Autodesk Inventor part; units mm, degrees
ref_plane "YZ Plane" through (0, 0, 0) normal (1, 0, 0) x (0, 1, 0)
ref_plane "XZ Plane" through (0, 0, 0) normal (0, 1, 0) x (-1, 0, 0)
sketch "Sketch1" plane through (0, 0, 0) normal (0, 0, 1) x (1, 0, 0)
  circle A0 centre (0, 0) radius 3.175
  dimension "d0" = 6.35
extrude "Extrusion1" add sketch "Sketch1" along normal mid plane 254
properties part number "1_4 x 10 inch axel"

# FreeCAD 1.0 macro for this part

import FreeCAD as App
import Part
import Sketcher
from FreeCAD import Vector
Q = App.Units.Quantity

doc = App.newDocument("Part")
body = doc.addObject("PartDesign::Body", "Body")

sketch1 = doc.addObject("Sketcher::SketchObject", "Sketch")
body.addObject(sketch1)
sketch1.AttachmentSupport = (doc.XY_Plane, [""])
sketch1.MapMode = "FlatFace"
sketch1.addGeometry(Part.Circle(Vector(0, 0, 0), Vector(0, 0, 1), 3.2), False)
sketch1.addConstraint([
    Sketcher.Constraint("Coincident", 0, 3, -1, 1),
    Sketcher.Constraint("Diameter", 0, Q("0.25 in")),
])
pad1 = doc.addObject("PartDesign::Pad", "Pad")
body.addObject(pad1)
pad1.Profile = sketch1
pad1.Length = Q("10 in")
pad1.Midplane = True

doc.recompute()
